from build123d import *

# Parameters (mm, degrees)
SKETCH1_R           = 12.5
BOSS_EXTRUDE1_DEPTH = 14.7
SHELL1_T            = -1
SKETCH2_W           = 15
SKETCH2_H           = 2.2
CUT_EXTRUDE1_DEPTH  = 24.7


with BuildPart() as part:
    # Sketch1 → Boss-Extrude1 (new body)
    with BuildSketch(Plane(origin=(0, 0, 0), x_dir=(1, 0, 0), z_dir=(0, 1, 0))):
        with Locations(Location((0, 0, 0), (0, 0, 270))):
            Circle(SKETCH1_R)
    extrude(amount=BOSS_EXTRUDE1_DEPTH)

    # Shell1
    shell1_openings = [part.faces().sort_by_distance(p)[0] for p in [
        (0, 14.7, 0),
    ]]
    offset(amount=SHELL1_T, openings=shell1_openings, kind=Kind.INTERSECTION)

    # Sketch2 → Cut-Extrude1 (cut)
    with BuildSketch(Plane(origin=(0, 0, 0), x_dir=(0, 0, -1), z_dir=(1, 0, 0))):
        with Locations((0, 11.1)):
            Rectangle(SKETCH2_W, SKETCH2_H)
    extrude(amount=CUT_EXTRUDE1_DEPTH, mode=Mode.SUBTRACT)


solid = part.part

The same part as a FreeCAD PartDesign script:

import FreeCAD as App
import Part
import Sketcher

V = App.Vector


def faces_at(feature, points):
    """Names of the faces that lie closest to the given points."""
    faces = feature.Shape.Faces
    near = lambda p: min(range(len(faces)), key=lambda i: faces[i].distToShape(Part.Vertex(*p))[0])
    return sorted({f"Face{near(p) + 1}" for p in points})


def add_polygon(sketch, points):
    """Adds a closed chain of lines whose ends are joined by coincident constraints."""
    first, n = sketch.GeometryCount, len(points)
    for a, b in zip(points, points[1:] + points[:1]):
        sketch.addGeometry(Part.LineSegment(App.Vector(*a, 0), App.Vector(*b, 0)), False)
    for i in range(n):
        sketch.addConstraint(Sketcher.Constraint("Coincident", first + i, 2, first + (i + 1) % n, 1))

doc = App.newDocument("Part")
body = doc.addObject("PartDesign::Body", "Body")

sketch1 = body.newObject("Sketcher::SketchObject", "Sketch")
sketch1.AttachmentSupport = (doc.getObject("XZ_Plane"), [""])
sketch1.MapMode = "FlatFace"
sketch1.addGeometry(Part.Circle(V(0, 0, 0), V(0, 0, 1), 12.5), False)
sketch1.addConstraint([
    Sketcher.Constraint("Coincident", 0, 3, -1, 1),
    Sketcher.Constraint("Diameter", 0, 25.0),
])
pad1 = body.newObject("PartDesign::Pad", "Pad")
pad1.Profile = sketch1
pad1.Length = 14.7
pad1.Reversed = True
doc.recompute()

thickness = body.newObject("PartDesign::Thickness", "Thickness")
thickness.Base = (pad1, faces_at(pad1, [(0, 14.7, 0)]))
thickness.Value = 1
thickness.Reversed = True
thickness.Join = "Intersection"

sketch2 = body.newObject("Sketcher::SketchObject", "Sketch001")
sketch2.AttachmentSupport = (doc.getObject("YZ_Plane"), [""])
sketch2.MapMode = "FlatFace"
add_polygon(sketch2, [(12.2, 7.5), (10, 7.5), (10, -7.5), (12.2, -7.5)])
sketch2.addConstraint([
    Sketcher.Constraint("Horizontal", 0),
    Sketcher.Constraint("Vertical", 1),
    Sketcher.Constraint("Horizontal", 2),
    Sketcher.Constraint("Vertical", 3),
    Sketcher.Constraint("DistanceY", 1, 2, 1, 1, 15.0),
    Sketcher.Constraint("DistanceX", 0, 2, 0, 1, 2.2),
    Sketcher.Constraint("DistanceX", -1, 1, 0, 2, 10.0),
    Sketcher.Constraint("DistanceY", -1, 1, 0, 2, 7.5),
])
pocket1 = body.newObject("PartDesign::Pocket", "Pocket")
pocket1.Profile = sketch2
pocket1.Length = 24.7
pocket1.Reversed = True

doc.recompute()
